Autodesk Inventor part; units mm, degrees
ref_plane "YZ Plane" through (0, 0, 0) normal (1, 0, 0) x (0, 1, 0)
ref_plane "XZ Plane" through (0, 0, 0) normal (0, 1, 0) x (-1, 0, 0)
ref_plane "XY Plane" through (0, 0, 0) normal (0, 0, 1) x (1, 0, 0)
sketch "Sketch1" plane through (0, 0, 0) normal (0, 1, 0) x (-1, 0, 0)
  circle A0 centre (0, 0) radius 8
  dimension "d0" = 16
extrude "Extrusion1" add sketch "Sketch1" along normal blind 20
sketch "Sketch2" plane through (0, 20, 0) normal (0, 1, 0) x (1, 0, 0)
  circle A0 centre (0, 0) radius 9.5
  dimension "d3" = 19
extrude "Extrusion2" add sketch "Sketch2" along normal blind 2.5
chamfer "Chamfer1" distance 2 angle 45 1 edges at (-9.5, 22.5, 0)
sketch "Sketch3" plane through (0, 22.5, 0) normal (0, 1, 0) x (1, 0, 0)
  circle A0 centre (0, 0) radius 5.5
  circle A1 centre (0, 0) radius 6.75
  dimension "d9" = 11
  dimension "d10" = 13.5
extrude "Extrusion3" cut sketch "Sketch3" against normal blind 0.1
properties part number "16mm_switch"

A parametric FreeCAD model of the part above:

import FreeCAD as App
import Part
import Sketcher

V = App.Vector
Q = App.Units.Quantity


def edges_at(feature, points):
    """Names of the edges that pass closest to the given points."""
    edges = feature.Shape.Edges
    near = lambda p: min(range(len(edges)), key=lambda i: edges[i].distToShape(Part.Vertex(*p))[0])
    return sorted({f"Edge{near(p) + 1}" for p in points})

doc = App.newDocument("Part")
body = doc.addObject("PartDesign::Body", "Body")

# Sketch on XZ plane
sketch1 = body.newObject("Sketcher::SketchObject", "Sketch")
sketch1.AttachmentSupport = (doc.getObject("XZ_Plane"), [""])
sketch1.MapMode = "FlatFace"
sketch1.addGeometry(Part.Circle(V(0, 0, 0), V(0, 0, 1), 8), False)
sketch1.addConstraint(Sketcher.Constraint("Coincident", 0, 3, -1, 1))
sketch1.addConstraint(Sketcher.Constraint("Diameter", 0, Q("16 mm")))
pad1 = body.newObject("PartDesign::Pad", "Pad")
pad1.Profile = sketch1
pad1.Length = 20
pad1.Reversed = True

# Sketch on XZ plane
sketch2 = body.newObject("Sketcher::SketchObject", "Sketch001")
sketch2.AttachmentSupport = (doc.getObject("XZ_Plane"), [""])
sketch2.MapMode = "FlatFace"
sketch2.AttachmentOffset = App.Placement(V(0, 0, -20), App.Rotation())
sketch2.addGeometry(Part.Circle(V(0, 0, 0), V(0, 0, 1), 10), False)
sketch2.addConstraint(Sketcher.Constraint("Coincident", 0, 3, -1, 1))
sketch2.addConstraint(Sketcher.Constraint("Diameter", 0, Q("19 mm")))
pad2 = body.newObject("PartDesign::Pad", "Pad001")
pad2.Profile = sketch2
pad2.Length = 2.5
pad2.Reversed = True
doc.recompute()

chamfer = body.newObject("PartDesign::Chamfer", "Chamfer")
chamfer.Base = (pad2, edges_at(pad2, [(-9.5, 22.5, 0)]))
chamfer.Size = 2

# Sketch on XZ plane
sketch3 = body.newObject("Sketcher::SketchObject", "Sketch002")
sketch3.AttachmentSupport = (doc.getObject("XZ_Plane"), [""])
sketch3.MapMode = "FlatFace"
sketch3.AttachmentOffset = App.Placement(V(0, 0, -22.5), App.Rotation())
sketch3.addGeometry(Part.Circle(V(0, 0, 0), V(0, 0, 1), 7), False)
sketch3.addGeometry(Part.Circle(V(0, 0, 0), V(0, 0, 1), 6), False)
sketch3.addConstraint(Sketcher.Constraint("Coincident", 0, 3, -1, 1))
sketch3.addConstraint(Sketcher.Constraint("Coincident", 1, 3, -1, 1))
sketch3.addConstraint(Sketcher.Constraint("Diameter", 1, Q("11 mm")))
sketch3.addConstraint(Sketcher.Constraint("Diameter", 0, Q("13.5 mm")))
pocket1 = body.newObject("PartDesign::Pocket", "Pocket")
pocket1.Profile = sketch3
pocket1.Length = 0.1
pocket1.Reversed = True

doc.recompute()
